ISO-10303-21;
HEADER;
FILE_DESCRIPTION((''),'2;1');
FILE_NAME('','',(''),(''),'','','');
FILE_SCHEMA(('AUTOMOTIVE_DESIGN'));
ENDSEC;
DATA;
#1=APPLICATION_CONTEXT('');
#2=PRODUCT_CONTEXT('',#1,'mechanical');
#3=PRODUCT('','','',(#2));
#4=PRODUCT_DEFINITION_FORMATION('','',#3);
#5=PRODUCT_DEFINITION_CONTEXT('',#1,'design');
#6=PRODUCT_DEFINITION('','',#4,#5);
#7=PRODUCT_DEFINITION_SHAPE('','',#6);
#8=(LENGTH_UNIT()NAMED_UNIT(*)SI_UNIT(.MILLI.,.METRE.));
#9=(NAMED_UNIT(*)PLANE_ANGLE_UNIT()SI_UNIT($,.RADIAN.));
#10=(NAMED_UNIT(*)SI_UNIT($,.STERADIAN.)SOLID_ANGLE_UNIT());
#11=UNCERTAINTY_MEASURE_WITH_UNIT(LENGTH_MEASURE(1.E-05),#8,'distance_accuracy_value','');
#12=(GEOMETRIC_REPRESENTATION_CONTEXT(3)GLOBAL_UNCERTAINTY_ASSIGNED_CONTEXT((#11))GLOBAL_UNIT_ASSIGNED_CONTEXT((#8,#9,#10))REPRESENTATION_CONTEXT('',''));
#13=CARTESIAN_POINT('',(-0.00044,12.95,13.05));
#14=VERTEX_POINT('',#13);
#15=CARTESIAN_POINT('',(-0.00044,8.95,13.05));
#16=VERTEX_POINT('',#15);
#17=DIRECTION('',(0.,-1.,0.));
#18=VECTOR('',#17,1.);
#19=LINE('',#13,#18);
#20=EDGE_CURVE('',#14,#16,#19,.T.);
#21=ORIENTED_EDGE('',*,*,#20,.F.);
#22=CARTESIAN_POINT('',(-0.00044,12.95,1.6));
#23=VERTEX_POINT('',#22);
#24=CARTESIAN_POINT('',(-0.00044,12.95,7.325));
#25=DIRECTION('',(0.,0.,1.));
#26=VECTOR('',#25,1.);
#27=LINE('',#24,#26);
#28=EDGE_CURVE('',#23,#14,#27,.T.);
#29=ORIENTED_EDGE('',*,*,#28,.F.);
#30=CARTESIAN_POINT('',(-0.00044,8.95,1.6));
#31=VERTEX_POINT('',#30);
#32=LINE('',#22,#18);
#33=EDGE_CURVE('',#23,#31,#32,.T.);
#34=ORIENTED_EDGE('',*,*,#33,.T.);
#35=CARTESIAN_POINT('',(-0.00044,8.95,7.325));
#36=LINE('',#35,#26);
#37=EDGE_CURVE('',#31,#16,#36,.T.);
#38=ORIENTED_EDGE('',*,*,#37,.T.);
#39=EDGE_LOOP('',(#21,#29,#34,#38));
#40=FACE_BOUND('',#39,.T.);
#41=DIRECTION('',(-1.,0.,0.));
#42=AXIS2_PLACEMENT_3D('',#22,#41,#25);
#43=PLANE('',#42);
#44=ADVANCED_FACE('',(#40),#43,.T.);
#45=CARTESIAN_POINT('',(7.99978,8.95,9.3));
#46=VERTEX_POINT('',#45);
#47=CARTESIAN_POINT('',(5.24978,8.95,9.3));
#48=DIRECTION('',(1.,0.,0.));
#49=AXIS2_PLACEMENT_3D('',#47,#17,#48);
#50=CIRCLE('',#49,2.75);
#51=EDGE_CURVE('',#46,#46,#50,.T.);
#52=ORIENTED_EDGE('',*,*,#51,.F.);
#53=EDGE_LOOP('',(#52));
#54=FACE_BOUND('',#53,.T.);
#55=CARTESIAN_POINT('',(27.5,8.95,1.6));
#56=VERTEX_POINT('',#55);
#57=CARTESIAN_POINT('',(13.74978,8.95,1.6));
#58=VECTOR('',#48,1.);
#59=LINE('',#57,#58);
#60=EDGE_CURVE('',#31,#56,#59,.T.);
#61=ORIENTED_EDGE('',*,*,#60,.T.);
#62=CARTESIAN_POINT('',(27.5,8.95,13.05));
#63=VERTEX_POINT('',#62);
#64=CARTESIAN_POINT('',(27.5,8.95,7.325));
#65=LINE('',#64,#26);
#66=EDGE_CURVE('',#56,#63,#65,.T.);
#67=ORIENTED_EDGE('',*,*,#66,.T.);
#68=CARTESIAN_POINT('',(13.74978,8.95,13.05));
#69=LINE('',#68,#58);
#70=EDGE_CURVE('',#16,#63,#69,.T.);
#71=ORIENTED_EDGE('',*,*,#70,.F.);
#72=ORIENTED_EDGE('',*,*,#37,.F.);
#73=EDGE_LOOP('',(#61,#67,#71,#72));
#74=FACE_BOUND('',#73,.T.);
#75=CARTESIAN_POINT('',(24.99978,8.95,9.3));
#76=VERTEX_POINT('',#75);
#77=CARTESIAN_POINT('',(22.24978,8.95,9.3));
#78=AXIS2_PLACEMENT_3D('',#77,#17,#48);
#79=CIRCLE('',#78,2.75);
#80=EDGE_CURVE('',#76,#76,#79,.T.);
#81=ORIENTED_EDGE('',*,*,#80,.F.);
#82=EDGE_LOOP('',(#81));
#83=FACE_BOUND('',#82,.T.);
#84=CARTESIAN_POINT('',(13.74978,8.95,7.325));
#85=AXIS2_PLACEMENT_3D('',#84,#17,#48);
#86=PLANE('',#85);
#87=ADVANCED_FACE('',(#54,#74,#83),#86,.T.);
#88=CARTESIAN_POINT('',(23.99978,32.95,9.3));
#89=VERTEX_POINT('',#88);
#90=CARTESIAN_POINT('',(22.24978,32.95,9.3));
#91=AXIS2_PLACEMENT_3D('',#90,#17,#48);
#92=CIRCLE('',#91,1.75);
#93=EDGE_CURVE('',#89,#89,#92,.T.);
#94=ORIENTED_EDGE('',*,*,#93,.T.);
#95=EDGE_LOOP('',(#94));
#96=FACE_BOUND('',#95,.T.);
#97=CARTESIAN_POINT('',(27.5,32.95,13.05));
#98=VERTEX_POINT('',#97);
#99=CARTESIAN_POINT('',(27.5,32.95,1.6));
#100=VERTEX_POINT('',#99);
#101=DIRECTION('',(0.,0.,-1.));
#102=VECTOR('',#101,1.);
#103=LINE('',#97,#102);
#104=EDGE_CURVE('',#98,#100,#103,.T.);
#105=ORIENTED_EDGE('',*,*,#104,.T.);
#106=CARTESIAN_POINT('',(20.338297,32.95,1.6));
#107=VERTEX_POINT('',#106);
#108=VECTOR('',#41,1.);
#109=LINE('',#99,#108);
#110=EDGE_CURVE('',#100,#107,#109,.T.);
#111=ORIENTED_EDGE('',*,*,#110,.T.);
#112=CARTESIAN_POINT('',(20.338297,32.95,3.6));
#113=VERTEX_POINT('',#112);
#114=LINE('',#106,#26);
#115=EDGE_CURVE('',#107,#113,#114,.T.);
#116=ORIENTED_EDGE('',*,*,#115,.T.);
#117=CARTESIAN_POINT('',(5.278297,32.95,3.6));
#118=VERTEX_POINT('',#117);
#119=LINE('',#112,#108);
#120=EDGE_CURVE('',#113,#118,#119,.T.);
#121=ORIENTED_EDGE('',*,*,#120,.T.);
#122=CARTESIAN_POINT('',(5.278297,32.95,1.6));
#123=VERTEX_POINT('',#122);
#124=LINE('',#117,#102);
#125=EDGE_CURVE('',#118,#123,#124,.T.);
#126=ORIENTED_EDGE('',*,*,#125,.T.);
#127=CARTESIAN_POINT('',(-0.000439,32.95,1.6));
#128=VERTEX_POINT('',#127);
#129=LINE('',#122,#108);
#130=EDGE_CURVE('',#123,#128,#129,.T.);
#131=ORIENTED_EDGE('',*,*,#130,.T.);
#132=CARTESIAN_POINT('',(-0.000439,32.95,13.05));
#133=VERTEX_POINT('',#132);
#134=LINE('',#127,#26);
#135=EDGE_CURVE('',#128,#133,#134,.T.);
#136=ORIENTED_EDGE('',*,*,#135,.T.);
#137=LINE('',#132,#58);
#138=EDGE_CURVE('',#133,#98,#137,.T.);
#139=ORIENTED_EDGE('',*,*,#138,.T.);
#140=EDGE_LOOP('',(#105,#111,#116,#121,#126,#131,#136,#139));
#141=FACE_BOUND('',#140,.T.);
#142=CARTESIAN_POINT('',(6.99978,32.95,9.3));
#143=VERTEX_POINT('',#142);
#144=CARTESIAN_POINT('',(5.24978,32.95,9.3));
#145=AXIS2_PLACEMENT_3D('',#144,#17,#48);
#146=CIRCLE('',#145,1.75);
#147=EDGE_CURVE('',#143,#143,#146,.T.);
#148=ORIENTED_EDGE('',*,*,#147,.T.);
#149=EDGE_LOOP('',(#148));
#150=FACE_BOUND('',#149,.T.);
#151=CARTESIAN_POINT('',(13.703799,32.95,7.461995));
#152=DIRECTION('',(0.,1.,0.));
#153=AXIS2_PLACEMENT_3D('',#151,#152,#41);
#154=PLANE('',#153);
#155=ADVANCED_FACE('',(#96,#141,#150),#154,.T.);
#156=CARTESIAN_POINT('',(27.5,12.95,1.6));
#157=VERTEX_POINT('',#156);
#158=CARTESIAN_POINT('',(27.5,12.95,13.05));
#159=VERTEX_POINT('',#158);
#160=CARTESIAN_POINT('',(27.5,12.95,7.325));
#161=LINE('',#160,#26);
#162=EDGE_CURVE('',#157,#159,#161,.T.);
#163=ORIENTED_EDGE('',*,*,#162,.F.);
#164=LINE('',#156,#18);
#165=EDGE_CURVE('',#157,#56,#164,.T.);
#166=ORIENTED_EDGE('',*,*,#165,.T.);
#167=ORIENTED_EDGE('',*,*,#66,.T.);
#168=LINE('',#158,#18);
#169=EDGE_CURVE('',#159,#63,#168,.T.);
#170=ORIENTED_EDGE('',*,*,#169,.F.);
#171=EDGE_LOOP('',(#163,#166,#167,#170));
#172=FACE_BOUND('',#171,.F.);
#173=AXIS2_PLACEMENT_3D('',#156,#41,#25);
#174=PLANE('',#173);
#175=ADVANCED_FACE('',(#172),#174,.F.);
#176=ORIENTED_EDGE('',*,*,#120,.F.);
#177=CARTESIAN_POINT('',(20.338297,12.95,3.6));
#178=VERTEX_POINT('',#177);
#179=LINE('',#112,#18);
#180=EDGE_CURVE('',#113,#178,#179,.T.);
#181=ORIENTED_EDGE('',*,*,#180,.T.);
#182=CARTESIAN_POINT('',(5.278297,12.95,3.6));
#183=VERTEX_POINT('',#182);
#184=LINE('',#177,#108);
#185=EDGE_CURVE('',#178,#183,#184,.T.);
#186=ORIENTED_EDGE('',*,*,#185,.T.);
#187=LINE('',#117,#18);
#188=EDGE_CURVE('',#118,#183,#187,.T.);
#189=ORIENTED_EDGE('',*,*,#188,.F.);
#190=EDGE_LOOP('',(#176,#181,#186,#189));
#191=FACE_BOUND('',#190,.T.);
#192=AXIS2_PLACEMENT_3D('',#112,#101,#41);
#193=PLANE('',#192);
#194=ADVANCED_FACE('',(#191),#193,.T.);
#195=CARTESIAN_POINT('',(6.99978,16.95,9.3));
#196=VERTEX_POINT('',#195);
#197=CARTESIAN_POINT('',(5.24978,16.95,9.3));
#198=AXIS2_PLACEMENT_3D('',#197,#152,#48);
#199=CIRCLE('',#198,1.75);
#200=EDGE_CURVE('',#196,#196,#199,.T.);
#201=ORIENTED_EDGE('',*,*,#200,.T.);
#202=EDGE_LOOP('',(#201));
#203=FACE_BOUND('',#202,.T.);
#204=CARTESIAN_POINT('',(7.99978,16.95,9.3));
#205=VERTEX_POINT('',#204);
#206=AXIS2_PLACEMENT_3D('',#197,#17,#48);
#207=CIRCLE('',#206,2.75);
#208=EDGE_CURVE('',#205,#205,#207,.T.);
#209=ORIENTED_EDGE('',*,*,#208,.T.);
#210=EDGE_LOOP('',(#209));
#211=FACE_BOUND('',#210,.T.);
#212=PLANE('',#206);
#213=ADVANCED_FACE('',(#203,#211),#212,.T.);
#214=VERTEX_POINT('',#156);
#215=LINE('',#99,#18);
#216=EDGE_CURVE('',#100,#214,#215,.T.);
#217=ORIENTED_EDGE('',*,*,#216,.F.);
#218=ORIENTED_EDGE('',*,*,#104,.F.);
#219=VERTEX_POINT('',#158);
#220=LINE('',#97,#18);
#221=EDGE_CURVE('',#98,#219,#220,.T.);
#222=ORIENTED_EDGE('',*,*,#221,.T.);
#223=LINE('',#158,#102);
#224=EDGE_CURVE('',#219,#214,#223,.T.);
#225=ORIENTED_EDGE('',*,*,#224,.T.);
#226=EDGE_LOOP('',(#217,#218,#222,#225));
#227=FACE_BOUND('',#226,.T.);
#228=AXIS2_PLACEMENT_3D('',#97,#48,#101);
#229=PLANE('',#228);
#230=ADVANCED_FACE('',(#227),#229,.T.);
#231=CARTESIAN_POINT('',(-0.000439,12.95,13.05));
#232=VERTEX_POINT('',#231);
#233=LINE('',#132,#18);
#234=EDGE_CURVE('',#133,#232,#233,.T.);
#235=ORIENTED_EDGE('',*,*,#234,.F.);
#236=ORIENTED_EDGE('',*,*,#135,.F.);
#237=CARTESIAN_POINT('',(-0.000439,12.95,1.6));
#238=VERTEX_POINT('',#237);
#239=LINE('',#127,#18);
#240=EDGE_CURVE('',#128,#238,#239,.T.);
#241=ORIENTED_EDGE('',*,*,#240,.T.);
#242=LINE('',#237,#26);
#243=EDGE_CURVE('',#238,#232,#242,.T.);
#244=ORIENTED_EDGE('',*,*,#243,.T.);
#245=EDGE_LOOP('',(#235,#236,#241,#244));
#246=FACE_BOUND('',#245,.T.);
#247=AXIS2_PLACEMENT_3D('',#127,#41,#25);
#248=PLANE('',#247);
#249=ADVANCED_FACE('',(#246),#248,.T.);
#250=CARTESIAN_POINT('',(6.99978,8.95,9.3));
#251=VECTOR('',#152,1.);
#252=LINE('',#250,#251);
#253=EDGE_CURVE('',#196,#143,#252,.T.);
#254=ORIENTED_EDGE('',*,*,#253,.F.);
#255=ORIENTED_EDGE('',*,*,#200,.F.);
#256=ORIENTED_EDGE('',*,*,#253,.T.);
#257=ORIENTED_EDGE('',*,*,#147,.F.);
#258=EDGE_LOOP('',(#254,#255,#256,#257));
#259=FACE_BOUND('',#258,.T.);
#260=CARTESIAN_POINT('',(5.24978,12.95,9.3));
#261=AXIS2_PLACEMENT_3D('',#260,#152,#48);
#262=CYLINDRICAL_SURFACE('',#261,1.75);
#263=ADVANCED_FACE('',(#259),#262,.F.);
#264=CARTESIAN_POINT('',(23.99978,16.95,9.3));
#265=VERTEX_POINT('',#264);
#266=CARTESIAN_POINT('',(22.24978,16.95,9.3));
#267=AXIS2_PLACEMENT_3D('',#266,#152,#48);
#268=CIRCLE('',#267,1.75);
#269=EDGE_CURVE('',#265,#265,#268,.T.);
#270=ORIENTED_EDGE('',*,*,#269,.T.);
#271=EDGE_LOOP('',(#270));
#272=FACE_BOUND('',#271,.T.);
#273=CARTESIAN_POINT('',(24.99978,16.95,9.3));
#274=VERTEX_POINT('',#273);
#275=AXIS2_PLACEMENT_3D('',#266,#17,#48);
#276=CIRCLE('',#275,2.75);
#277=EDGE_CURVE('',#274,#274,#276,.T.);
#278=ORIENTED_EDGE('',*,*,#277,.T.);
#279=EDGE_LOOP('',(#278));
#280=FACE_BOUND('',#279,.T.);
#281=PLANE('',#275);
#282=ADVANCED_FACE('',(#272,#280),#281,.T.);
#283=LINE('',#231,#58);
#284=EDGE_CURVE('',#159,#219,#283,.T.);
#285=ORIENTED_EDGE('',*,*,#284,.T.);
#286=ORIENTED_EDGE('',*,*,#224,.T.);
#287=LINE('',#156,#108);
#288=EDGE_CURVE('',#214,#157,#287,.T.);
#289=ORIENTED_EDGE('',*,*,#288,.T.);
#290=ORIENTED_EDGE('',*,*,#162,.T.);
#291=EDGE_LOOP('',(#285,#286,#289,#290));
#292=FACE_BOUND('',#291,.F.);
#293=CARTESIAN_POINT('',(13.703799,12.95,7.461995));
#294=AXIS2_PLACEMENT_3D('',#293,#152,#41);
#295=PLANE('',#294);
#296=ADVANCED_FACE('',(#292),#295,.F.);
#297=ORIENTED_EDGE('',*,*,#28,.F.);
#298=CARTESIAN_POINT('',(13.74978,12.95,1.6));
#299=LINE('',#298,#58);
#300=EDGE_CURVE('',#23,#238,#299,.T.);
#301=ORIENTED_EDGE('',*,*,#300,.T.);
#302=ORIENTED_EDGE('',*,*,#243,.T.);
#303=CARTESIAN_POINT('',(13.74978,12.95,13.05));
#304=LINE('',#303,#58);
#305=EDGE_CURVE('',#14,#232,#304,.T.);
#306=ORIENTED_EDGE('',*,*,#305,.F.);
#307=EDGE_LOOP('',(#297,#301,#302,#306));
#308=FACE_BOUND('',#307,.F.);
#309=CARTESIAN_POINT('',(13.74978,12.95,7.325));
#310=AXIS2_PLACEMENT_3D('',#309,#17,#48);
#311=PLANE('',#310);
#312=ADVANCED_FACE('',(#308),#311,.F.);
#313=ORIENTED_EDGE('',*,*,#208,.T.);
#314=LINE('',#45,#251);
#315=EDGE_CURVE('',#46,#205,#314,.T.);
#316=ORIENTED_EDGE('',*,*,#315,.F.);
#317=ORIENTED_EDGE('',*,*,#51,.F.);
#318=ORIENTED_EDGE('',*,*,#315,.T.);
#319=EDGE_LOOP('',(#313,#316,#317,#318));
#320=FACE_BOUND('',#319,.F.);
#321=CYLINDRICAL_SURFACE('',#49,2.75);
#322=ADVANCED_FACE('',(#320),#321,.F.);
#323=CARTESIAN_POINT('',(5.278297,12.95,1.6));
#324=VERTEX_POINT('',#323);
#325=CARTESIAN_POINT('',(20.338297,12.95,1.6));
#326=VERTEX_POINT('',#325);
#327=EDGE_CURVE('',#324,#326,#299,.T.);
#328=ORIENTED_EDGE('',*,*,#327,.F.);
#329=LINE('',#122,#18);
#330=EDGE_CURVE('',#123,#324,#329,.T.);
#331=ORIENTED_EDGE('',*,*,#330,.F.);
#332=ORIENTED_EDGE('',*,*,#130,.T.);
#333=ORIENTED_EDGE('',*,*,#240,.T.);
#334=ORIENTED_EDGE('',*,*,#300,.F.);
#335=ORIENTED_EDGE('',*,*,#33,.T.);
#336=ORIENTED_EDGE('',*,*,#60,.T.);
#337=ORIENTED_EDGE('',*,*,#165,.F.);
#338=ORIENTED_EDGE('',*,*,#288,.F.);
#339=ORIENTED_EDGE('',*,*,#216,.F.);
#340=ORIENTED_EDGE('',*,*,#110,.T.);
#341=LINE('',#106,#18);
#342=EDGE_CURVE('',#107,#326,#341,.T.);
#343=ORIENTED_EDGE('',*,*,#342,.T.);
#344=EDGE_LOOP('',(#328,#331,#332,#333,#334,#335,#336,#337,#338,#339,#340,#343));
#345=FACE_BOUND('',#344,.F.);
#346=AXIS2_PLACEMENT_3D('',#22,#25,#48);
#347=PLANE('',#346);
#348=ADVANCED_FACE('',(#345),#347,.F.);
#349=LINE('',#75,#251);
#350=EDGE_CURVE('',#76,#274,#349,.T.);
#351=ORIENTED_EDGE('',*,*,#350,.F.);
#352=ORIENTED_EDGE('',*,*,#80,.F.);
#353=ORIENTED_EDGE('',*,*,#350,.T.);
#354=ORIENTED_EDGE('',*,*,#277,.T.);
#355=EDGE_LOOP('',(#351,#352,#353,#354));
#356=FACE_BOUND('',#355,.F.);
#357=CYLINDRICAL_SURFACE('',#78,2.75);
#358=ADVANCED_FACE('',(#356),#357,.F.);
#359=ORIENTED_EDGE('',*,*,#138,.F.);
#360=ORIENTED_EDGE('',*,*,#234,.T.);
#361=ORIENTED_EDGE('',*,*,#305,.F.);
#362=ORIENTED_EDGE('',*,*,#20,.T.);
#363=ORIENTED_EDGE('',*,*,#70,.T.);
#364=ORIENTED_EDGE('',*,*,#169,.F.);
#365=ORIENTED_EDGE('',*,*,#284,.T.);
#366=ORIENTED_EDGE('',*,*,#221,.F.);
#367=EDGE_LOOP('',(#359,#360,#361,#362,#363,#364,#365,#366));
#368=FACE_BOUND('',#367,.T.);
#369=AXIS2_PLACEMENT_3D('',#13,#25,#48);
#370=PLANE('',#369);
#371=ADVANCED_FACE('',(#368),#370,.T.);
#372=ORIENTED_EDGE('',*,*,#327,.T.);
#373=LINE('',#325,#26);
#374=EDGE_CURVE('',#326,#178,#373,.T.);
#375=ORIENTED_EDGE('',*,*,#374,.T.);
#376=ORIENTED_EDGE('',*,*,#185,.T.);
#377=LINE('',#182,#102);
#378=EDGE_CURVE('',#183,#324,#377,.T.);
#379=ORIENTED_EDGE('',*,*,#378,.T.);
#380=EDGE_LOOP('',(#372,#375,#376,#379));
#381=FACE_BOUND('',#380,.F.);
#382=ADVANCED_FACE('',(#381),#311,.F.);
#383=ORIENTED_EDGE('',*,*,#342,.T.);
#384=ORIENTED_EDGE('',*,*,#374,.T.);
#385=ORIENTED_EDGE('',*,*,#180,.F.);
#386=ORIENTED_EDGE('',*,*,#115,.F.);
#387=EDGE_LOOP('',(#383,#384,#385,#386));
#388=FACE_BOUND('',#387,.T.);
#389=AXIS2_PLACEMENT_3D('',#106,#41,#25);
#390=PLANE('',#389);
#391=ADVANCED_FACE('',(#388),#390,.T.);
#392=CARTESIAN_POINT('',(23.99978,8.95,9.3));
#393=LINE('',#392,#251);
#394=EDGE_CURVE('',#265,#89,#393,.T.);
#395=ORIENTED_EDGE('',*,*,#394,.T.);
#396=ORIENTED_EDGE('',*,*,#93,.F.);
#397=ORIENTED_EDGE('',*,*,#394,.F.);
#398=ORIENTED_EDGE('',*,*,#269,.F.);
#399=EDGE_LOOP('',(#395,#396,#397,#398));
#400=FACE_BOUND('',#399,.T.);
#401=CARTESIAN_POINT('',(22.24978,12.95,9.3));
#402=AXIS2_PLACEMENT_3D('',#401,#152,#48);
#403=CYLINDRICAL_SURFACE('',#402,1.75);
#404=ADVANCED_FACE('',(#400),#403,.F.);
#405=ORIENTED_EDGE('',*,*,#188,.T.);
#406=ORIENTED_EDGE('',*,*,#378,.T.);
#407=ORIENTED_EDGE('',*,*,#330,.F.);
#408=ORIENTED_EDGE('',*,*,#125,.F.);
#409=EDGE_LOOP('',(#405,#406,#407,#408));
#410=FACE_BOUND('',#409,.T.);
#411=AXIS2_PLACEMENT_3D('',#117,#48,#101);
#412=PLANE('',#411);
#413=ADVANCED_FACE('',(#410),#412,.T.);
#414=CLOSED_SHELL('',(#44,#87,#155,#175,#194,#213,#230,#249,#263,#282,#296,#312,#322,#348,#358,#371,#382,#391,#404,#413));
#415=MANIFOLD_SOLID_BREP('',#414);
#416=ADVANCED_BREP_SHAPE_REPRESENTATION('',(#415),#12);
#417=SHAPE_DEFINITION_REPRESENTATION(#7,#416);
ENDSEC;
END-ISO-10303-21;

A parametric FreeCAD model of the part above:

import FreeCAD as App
import Part
import Sketcher
from FreeCAD import Vector

doc = App.newDocument("Part")
body = doc.addObject("PartDesign::Body", "Body")

# Sketch on XZ plane
sketch1 = doc.addObject("Sketcher::SketchObject", "Sketch")
body.addObject(sketch1)
sketch1.AttachmentSupport = (doc.XZ_Plane, [""])
sketch1.MapMode = "FlatFace"
sketch1.AttachmentOffset = App.Placement(Vector(0, 0, -32.95), App.Rotation())
sketch1.addGeometry(Part.LineSegment(Vector(27.5, 13.05, 0), Vector(-0.000439, 13.05, 0)), False)
sketch1.addGeometry(Part.LineSegment(Vector(-0.000439, 13.05, 0), Vector(-0.000439, 1.6, 0)), False)
sketch1.addGeometry(Part.LineSegment(Vector(-0.000439, 1.6, 0), Vector(5.278297, 1.6, 0)), False)
sketch1.addGeometry(Part.LineSegment(Vector(5.278297, 1.6, 0), Vector(5.278297, 3.6, 0)), False)
sketch1.addGeometry(Part.LineSegment(Vector(5.278297, 3.6, 0), Vector(20.338297, 3.6, 0)), False)
sketch1.addGeometry(Part.LineSegment(Vector(20.338297, 3.6, 0), Vector(20.338297, 1.6, 0)), False)
sketch1.addGeometry(Part.LineSegment(Vector(20.338297, 1.6, 0), Vector(27.5, 1.6, 0)), False)
sketch1.addGeometry(Part.LineSegment(Vector(27.5, 1.6, 0), Vector(27.5, 13.05, 0)), False)
sketch1.addGeometry(Part.Circle(Vector(22.24978, 9.3, 0), Vector(0, 0, 1), 1.75), False)
sketch1.addGeometry(Part.Circle(Vector(5.24978, 9.3, 0), Vector(0, 0, 1), 1.75), False)
sketch1.addConstraint(Sketcher.Constraint("Coincident", 0, 2, 1, 1))
sketch1.addConstraint(Sketcher.Constraint("Coincident", 1, 2, 2, 1))
sketch1.addConstraint(Sketcher.Constraint("Coincident", 2, 2, 3, 1))
sketch1.addConstraint(Sketcher.Constraint("Coincident", 3, 2, 4, 1))
sketch1.addConstraint(Sketcher.Constraint("Coincident", 4, 2, 5, 1))
sketch1.addConstraint(Sketcher.Constraint("Coincident", 5, 2, 6, 1))
sketch1.addConstraint(Sketcher.Constraint("Coincident", 6, 2, 7, 1))
sketch1.addConstraint(Sketcher.Constraint("Coincident", 7, 2, 0, 1))
sketch1.addConstraint(Sketcher.Constraint("Horizontal", 0))
sketch1.addConstraint(Sketcher.Constraint("Vertical", 1))
sketch1.addConstraint(Sketcher.Constraint("Horizontal", 2))
sketch1.addConstraint(Sketcher.Constraint("Vertical", 3))
sketch1.addConstraint(Sketcher.Constraint("Horizontal", 4))
sketch1.addConstraint(Sketcher.Constraint("Vertical", 5))
sketch1.addConstraint(Sketcher.Constraint("Horizontal", 6))
sketch1.addConstraint(Sketcher.Constraint("Vertical", 7))
sketch1.addConstraint(Sketcher.Constraint("Equal", 8, 9))
sketch1.addConstraint(Sketcher.Constraint("Horizontal", 8, 3, 9, 3))
sketch1.addConstraint(Sketcher.Constraint("Horizontal", 2, 2, 5, 2))
sketch1.addConstraint(Sketcher.Constraint("Diameter", 8, 3.5))
sketch1.addConstraint(Sketcher.Constraint("DistanceY", 3, 1, 3, 2, 2.0))
sketch1.addConstraint(Sketcher.Constraint("DistanceX", 9, 3, 8, 3, 17.0))
sketch1.addConstraint(Sketcher.Constraint("DistanceX", 4, 1, 4, 2, 15.06))
sketch1.addConstraint(Sketcher.Constraint("DistanceY", 1, 2, 1, 1, 11.45))
sketch1.addConstraint(Sketcher.Constraint("DistanceY", -1, 1, 8, 3, 9.3))
sketch1.addConstraint(Sketcher.Constraint("DistanceY", -1, 1, 1, 2, 1.6))
sketch1.addConstraint(Sketcher.Constraint("DistanceX", -1, 1, 6, 2, 27.5))
sketch1.addConstraint(Sketcher.Constraint("DistanceX", 0, 2, 0, 1, 27.500439))
sketch1.addConstraint(Sketcher.Constraint("DistanceX", 2, 1, 2, 2, 5.278736))
sketch1.addConstraint(Sketcher.Constraint("DistanceX", -1, 1, 8, 3, 22.24978))
pad1 = doc.addObject("PartDesign::Pad", "Pad")
body.addObject(pad1)
pad1.Profile = sketch1
pad1.Length = 20

# Sketch on XZ plane
sketch2 = doc.addObject("Sketcher::SketchObject", "Sketch001")
body.addObject(sketch2)
sketch2.AttachmentSupport = (doc.XZ_Plane, [""])
sketch2.MapMode = "FlatFace"
sketch2.AttachmentOffset = App.Placement(Vector(0, 0, -12.95), App.Rotation())
sketch2.addGeometry(Part.LineSegment(Vector(-0.00044, 13.05, 0), Vector(-0.00044, 1.6, 0)), False)
sketch2.addGeometry(Part.LineSegment(Vector(-0.00044, 1.6, 0), Vector(27.5, 1.6, 0)), False)
sketch2.addGeometry(Part.LineSegment(Vector(27.5, 1.6, 0), Vector(27.5, 13.05, 0)), False)
sketch2.addGeometry(Part.LineSegment(Vector(27.5, 13.05, 0), Vector(-0.00044, 13.05, 0)), False)
sketch2.addGeometry(Part.Circle(Vector(5.24978, 9.3, 0), Vector(0, 0, 1), 1.75), False)
sketch2.addGeometry(Part.Circle(Vector(22.24978, 9.3, 0), Vector(0, 0, 1), 1.75), False)
sketch2.addConstraint(Sketcher.Constraint("Coincident", 0, 2, 1, 1))
sketch2.addConstraint(Sketcher.Constraint("Coincident", 1, 2, 2, 1))
sketch2.addConstraint(Sketcher.Constraint("Coincident", 2, 2, 3, 1))
sketch2.addConstraint(Sketcher.Constraint("Coincident", 3, 2, 0, 1))
sketch2.addConstraint(Sketcher.Constraint("Vertical", 0))
sketch2.addConstraint(Sketcher.Constraint("Horizontal", 1))
sketch2.addConstraint(Sketcher.Constraint("Vertical", 2))
sketch2.addConstraint(Sketcher.Constraint("Horizontal", 3))
sketch2.addConstraint(Sketcher.Constraint("Equal", 4, 5))
sketch2.addConstraint(Sketcher.Constraint("Horizontal", 4, 3, 5, 3))
sketch2.addConstraint(Sketcher.Constraint("Diameter", 4, 3.5))
sketch2.addConstraint(Sketcher.Constraint("DistanceX", 4, 3, 5, 3, 17.0))
sketch2.addConstraint(Sketcher.Constraint("DistanceY", 0, 2, 0, 1, 11.45))
sketch2.addConstraint(Sketcher.Constraint("DistanceY", -1, 1, 4, 3, 9.3))
sketch2.addConstraint(Sketcher.Constraint("DistanceY", -1, 1, 0, 2, 1.6))
sketch2.addConstraint(Sketcher.Constraint("DistanceX", -1, 1, 1, 2, 27.5))
sketch2.addConstraint(Sketcher.Constraint("DistanceX", 1, 1, 1, 2, 27.500439))
sketch2.addConstraint(Sketcher.Constraint("DistanceX", -1, 1, 4, 3, 5.24978))
pad2 = doc.addObject("PartDesign::Pad", "Pad001")
body.addObject(pad2)
pad2.Profile = sketch2
pad2.Length = 4

# Sketch on XZ plane
sketch3 = doc.addObject("Sketcher::SketchObject", "Sketch002")
body.addObject(sketch3)
sketch3.AttachmentSupport = (doc.XZ_Plane, [""])
sketch3.MapMode = "FlatFace"
sketch3.AttachmentOffset = App.Placement(Vector(0, 0, -8.95), App.Rotation())
sketch3.addGeometry(Part.Circle(Vector(22.24978, 9.3, 0), Vector(0, 0, 1), 2.75), False)
sketch3.addGeometry(Part.Circle(Vector(5.24978, 9.3, 0), Vector(0, 0, 1), 2.75), False)
sketch3.addConstraint(Sketcher.Constraint("Equal", 0, 1))
sketch3.addConstraint(Sketcher.Constraint("Horizontal", 0, 3, 1, 3))
sketch3.addConstraint(Sketcher.Constraint("Diameter", 0, 5.5))
sketch3.addConstraint(Sketcher.Constraint("DistanceX", 1, 3, 0, 3, 17.0))
sketch3.addConstraint(Sketcher.Constraint("DistanceY", -1, 1, 0, 3, 9.3))
sketch3.addConstraint(Sketcher.Constraint("DistanceX", -1, 1, 0, 3, 22.24978))
pocket1 = doc.addObject("PartDesign::Pocket", "Pocket")
body.addObject(pocket1)
pocket1.Profile = sketch3
pocket1.Length = 8

doc.recompute()
